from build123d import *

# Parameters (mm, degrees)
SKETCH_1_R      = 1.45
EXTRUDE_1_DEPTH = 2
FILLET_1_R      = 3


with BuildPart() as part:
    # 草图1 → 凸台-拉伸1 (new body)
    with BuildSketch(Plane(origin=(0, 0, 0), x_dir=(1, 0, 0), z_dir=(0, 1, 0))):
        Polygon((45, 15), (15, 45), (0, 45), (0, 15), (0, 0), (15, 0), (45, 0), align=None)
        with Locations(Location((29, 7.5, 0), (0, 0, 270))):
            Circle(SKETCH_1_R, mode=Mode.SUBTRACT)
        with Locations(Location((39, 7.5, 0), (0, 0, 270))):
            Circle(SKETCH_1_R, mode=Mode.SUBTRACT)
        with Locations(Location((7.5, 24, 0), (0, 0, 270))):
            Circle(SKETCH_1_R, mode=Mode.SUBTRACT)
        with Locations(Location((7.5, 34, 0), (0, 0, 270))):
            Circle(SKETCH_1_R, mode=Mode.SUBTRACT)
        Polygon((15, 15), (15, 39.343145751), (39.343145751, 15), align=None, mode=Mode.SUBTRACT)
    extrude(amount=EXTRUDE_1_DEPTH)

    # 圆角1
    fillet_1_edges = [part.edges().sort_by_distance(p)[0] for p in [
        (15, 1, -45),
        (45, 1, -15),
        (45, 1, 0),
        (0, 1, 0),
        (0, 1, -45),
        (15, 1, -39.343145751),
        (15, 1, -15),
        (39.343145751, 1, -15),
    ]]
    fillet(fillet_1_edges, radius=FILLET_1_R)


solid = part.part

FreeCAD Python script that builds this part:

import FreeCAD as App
import Part
import Sketcher

V = App.Vector


def edges_at(feature, points):
    """Names of the edges that pass closest to the given points."""
    edges = feature.Shape.Edges
    near = lambda p: min(range(len(edges)), key=lambda i: edges[i].distToShape(Part.Vertex(*p))[0])
    return sorted({f"Edge{near(p) + 1}" for p in points})

doc = App.newDocument("Part")
body = doc.addObject("PartDesign::Body", "Body")

# Sketch on XZ plane
sketch1 = body.newObject("Sketcher::SketchObject", "Sketch")
sketch1.AttachmentSupport = (doc.getObject("XZ_Plane"), [""])
sketch1.MapMode = "FlatFace"
sketch1.addGeometry([
    Part.LineSegment(V(45, -15, 0), V(15, -45, 0)),  # 0
    Part.LineSegment(V(15, -45, 0), V(0, -45, 0)),  # 1
    Part.LineSegment(V(0, -45, 0), V(0, 0, 0)),  # 2
    Part.LineSegment(V(0, 0, 0), V(45, 0, 0)),  # 3
    Part.LineSegment(V(45, 0, 0), V(45, -15, 0)),  # 4
    Part.Circle(V(29, -7.5, 0), V(0, 0, 1), 1.4),  # 5
    Part.Circle(V(39, -7.5, 0), V(0, 0, 1), 1.4),  # 6
    Part.Circle(V(7.5, -24, 0), V(0, 0, 1), 1.4),  # 7
    Part.Circle(V(7.5, -34, 0), V(0, 0, 1), 1.4),  # 8
    Part.LineSegment(V(39.3, -15, 0), V(15, -15, 0)),  # 9
    Part.LineSegment(V(15, -15, 0), V(15, -39.3, 0)),  # 10
    Part.LineSegment(V(15, -39.3, 0), V(39.3, -15, 0)),  # 11
], False)
sketch1.addConstraint([
    Sketcher.Constraint("Coincident", 0, 2, 1, 1),
    Sketcher.Constraint("Coincident", 1, 2, 2, 1),
    Sketcher.Constraint("Coincident", 2, 2, 3, 1),
    Sketcher.Constraint("Coincident", 3, 2, 4, 1),
    Sketcher.Constraint("Coincident", 4, 2, 0, 1),
    Sketcher.Constraint("Coincident", 9, 2, 10, 1),
    Sketcher.Constraint("Coincident", 10, 2, 11, 1),
    Sketcher.Constraint("Coincident", 11, 2, 9, 1),
    Sketcher.Constraint("Horizontal", 1),
    Sketcher.Constraint("Vertical", 2),
    Sketcher.Constraint("Horizontal", 3),
    Sketcher.Constraint("Vertical", 4),
    Sketcher.Constraint("Horizontal", 9),
    Sketcher.Constraint("Vertical", 10),
    Sketcher.Constraint("Coincident", 2, 2, -1, 1),
    Sketcher.Constraint("Equal", 5, 6),
    Sketcher.Constraint("Equal", 6, 7),
    Sketcher.Constraint("Equal", 7, 8),
    Sketcher.Constraint("Parallel", 0, 11),
    Sketcher.Constraint("Horizontal", 5, 3, 6, 3),
    Sketcher.Constraint("Horizontal", 4, 2, 9, 2),
    Sketcher.Constraint("Vertical", 7, 3, 8, 3),
    Sketcher.Constraint("Vertical", 0, 2, 9, 2),
    Sketcher.Constraint("Equal", 3, 2),
    Sketcher.Constraint("Equal", 1, 4),
    Sketcher.Constraint("Diameter", 5, 2.9),
    Sketcher.Constraint("DistanceX", 1, 2, 1, 1, 15.0),
    Sketcher.Constraint("DistanceX", 3, 1, 3, 2, 45.0),
    Sketcher.Constraint("DistanceX", -1, 1, 5, 3, 29.0),
    Sketcher.Constraint("DistanceX", -1, 1, 6, 3, 39.0),
    Sketcher.Constraint("DistanceY", 7, 3, -1, 1, 24.0),
    Sketcher.Constraint("DistanceY", 8, 3, -1, 1, 34.0),
    Sketcher.Constraint("DistanceY", 5, 3, -1, 1, 7.5),
    Sketcher.Constraint("DistanceX", -1, 1, 7, 3, 7.5),
    Sketcher.Constraint("DistanceX", 9, 2, 9, 1, 24.343146),
])
pad1 = body.newObject("PartDesign::Pad", "Pad")
pad1.Profile = sketch1
pad1.Length = 2
pad1.Reversed = True
doc.recompute()

fillet = body.newObject("PartDesign::Fillet", "Fillet")
fillet.Base = (pad1, edges_at(pad1, [
    (15, 1, -45),
    (45, 1, -15),
    (45, 1, 0),
    (0, 1, 0),
    (0, 1, -45),
    (15, 1, -39.343),
    (15, 1, -15),
    (39.343, 1, -15),
]))
fillet.Radius = 3

doc.recompute()
